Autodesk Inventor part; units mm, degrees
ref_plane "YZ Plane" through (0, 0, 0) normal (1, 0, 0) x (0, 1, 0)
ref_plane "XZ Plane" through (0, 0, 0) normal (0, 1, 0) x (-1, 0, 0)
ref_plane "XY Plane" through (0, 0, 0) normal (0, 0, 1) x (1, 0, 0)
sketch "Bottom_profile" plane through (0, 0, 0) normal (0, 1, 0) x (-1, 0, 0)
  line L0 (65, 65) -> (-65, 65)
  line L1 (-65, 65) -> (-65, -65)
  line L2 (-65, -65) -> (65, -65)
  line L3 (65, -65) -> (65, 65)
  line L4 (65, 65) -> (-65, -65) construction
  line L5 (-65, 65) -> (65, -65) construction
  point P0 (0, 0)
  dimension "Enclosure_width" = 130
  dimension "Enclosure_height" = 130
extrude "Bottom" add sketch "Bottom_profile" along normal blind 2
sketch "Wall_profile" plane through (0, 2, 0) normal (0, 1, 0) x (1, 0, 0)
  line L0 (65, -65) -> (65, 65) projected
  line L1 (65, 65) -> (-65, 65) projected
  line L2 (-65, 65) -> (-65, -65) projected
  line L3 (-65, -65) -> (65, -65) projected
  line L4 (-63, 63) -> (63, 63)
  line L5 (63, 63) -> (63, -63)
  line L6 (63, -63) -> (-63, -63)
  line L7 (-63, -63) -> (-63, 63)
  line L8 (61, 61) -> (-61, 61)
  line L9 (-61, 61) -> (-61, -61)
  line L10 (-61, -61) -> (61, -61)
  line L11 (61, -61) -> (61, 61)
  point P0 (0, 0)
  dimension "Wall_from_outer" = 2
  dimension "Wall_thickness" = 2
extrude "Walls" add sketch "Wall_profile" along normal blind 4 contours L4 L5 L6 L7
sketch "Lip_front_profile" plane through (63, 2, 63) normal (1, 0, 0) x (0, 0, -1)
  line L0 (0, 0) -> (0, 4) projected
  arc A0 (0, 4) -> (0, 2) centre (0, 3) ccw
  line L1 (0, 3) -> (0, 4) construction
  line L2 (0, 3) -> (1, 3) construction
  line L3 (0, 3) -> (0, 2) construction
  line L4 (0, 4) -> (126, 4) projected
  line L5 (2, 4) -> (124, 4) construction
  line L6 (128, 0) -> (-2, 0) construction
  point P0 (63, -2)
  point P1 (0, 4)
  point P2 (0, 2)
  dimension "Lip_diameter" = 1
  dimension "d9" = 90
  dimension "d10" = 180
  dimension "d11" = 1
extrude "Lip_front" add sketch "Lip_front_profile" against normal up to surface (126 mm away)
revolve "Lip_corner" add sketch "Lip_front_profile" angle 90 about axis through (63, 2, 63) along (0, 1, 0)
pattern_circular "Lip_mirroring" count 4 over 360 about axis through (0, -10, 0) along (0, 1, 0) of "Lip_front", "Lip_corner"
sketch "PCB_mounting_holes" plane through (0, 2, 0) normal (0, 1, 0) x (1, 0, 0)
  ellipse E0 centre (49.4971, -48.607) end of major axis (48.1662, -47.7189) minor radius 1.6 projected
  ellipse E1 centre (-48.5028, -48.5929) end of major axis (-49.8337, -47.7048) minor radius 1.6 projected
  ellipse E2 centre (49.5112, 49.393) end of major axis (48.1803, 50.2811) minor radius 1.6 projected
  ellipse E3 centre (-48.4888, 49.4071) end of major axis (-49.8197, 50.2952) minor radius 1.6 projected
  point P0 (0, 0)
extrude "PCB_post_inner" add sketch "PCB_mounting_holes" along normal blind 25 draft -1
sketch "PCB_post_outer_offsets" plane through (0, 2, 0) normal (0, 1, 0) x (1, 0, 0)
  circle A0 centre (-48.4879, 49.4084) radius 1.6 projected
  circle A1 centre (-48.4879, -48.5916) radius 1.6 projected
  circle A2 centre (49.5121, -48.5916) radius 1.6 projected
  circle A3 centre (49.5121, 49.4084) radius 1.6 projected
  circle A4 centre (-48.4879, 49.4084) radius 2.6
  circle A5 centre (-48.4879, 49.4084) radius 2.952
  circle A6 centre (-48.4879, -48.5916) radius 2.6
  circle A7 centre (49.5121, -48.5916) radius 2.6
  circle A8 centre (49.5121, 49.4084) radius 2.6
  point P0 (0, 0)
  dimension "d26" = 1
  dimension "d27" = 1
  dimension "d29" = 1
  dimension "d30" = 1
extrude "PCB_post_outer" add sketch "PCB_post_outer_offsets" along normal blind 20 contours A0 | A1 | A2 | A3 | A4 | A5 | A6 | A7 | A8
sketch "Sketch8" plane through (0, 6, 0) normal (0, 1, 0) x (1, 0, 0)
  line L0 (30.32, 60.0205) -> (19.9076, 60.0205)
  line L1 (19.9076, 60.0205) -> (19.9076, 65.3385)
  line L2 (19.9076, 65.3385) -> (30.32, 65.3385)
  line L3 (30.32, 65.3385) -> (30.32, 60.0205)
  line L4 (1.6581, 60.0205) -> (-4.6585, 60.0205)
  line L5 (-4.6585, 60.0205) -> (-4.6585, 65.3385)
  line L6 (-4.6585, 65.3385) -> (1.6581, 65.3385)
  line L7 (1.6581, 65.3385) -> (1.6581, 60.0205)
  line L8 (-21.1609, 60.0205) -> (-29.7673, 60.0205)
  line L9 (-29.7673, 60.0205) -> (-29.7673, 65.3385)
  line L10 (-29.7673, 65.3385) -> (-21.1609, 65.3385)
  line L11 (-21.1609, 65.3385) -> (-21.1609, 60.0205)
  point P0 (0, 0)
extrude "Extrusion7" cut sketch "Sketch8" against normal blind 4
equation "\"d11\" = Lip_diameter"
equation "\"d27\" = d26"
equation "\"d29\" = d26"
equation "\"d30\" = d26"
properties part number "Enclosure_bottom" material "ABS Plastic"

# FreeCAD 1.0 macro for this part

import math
import FreeCAD as App
import Part
import Sketcher
from FreeCAD import Vector


def add_polygon(sketch, points):
    """Adds a closed chain of lines whose ends are joined by coincident constraints."""
    first, n = sketch.GeometryCount, len(points)
    for a, b in zip(points, points[1:] + points[:1]):
        sketch.addGeometry(Part.LineSegment(App.Vector(*a, 0), App.Vector(*b, 0)), False)
    for i in range(n):
        sketch.addConstraint(Sketcher.Constraint("Coincident", first + i, 2, first + (i + 1) % n, 1))

doc = App.newDocument("Part")
params = doc.addObject("Spreadsheet::Sheet", "Params")
for row, (alias, value) in enumerate([
    ("sketch1_width", "130 mm"),
    ("pad1_length", "2 mm"),
    ("sketch2_width", "126 mm"),
    ("pad2_length", "4 mm"),
    ("sketch3_radius", "1 mm"),
    ("pad3_length", "126 mm"),
    ("sketch4_radius", "1 mm"),
    ("revolution_angle", "90 deg"),
    ("pad4_length", "25 mm"),
    ("pad4_taper", "-1 deg"),
    ("sketch6_diameter", "5.2 mm"),
    ("pad5_length", "20 mm"),
    ("pocket1_length", "4 mm"),
], start=1):
    params.set(f"A{row}", alias)
    params.set(f"B{row}", "=" + value)
    params.setAlias(f"B{row}", alias)

body = doc.addObject("PartDesign::Body", "Body")

# Sketch on XZ plane
sketch1 = body.newObject("Sketcher::SketchObject", "Sketch")
sketch1.AttachmentSupport = (doc.getObject("XZ_Plane"), [""])
sketch1.MapMode = "FlatFace"
add_polygon(sketch1, [(-65, -65), (-65, 65), (65, 65), (65, -65)])  # lines 0-3
sketch1.addConstraint(Sketcher.Constraint("Vertical", 0))
sketch1.addConstraint(Sketcher.Constraint("Horizontal", 1))
sketch1.addConstraint(Sketcher.Constraint("Vertical", 2))
sketch1.addConstraint(Sketcher.Constraint("Horizontal", 3))
sketch1.addConstraint(Sketcher.Constraint("Symmetric", 0, 2, 2, 2, -1, 1))
sketch1.addConstraint(Sketcher.Constraint("Equal", 3, 0))
sketch1.addConstraint(Sketcher.Constraint("DistanceX", 1, 1, 1, 2, 130.0))
sketch1.setExpression("Constraints[10]", "Params.sketch1_width")
pad1 = body.newObject("PartDesign::Pad", "Pad")
pad1.Profile = sketch1
pad1.setExpression("Length", "Params.pad1_length")
pad1.Reversed = True

# Sketch on XZ plane
sketch2 = body.newObject("Sketcher::SketchObject", "Sketch001")
sketch2.AttachmentSupport = (doc.getObject("XZ_Plane"), [""])
sketch2.MapMode = "FlatFace"
sketch2.AttachmentOffset = App.Placement(Vector(0, 0, -2), App.Rotation())
add_polygon(sketch2, [(63, -63), (-63, -63), (-63, 63), (63, 63)])  # lines 0-3
add_polygon(sketch2, [(-61, -61), (61, -61), (61, 61), (-61, 61)])  # lines 4-7
sketch2.addConstraint(Sketcher.Constraint("Horizontal", 0))
sketch2.addConstraint(Sketcher.Constraint("Vertical", 1))
sketch2.addConstraint(Sketcher.Constraint("Horizontal", 2))
sketch2.addConstraint(Sketcher.Constraint("Vertical", 3))
sketch2.addConstraint(Sketcher.Constraint("Horizontal", 4))
sketch2.addConstraint(Sketcher.Constraint("Vertical", 5))
sketch2.addConstraint(Sketcher.Constraint("Horizontal", 6))
sketch2.addConstraint(Sketcher.Constraint("Vertical", 7))
sketch2.addConstraint(Sketcher.Constraint("Symmetric", 0, 2, 2, 2, -1, 1))
sketch2.addConstraint(Sketcher.Constraint("Symmetric", 4, 2, 6, 2, -1, 1))
sketch2.addConstraint(Sketcher.Constraint("Equal", 2, 1))
sketch2.addConstraint(Sketcher.Constraint("Equal", 6, 5))
sketch2.addConstraint(Sketcher.Constraint("DistanceX", 4, 2, 3, 2, 2.0))
sketch2.addConstraint(Sketcher.Constraint("DistanceX", 0, 2, 0, 1, 126.0))
sketch2.setExpression("Constraints[21]", "Params.sketch2_width")
pad2 = body.newObject("PartDesign::Pad", "Pad001")
pad2.Profile = sketch2
pad2.setExpression("Length", "Params.pad2_length")
pad2.Reversed = True

# Sketch on YZ plane
sketch3 = body.newObject("Sketcher::SketchObject", "Sketch002")
sketch3.AttachmentSupport = (doc.getObject("YZ_Plane"), [""])
sketch3.MapMode = "FlatFace"
sketch3.AttachmentOffset = App.Placement(Vector(0, 0, 63), App.Rotation())
sketch3.addGeometry(Part.ArcOfCircle(Part.Circle(Vector(5, 63, 0), Vector(0, 0, 1), 1), math.radians(0), math.radians(180)), False)
sketch3.addGeometry(Part.LineSegment(Vector(4, 63, 0), Vector(6, 63, 0)), False)
sketch3.addConstraint(Sketcher.Constraint("Coincident", 0, 1, 1, 2))
sketch3.addConstraint(Sketcher.Constraint("Coincident", 1, 1, 0, 2))
sketch3.addConstraint(Sketcher.Constraint("Horizontal", 1))
sketch3.addConstraint(Sketcher.Constraint("Radius", 0, 1.0))
sketch3.addConstraint(Sketcher.Constraint("DistanceX", -1, 1, 0, 3, 5.0))
sketch3.addConstraint(Sketcher.Constraint("DistanceY", -1, 1, 0, 3, 63.0))
sketch3.addConstraint(Sketcher.Constraint("DistanceY", -1, 1, 0, 1, 63.0))
sketch3.setExpression("Constraints[3]", "Params.sketch3_radius")
pad3 = body.newObject("PartDesign::Pad", "Pad002")
pad3.Profile = sketch3
pad3.setExpression("Length", "Params.pad3_length")
pad3.Reversed = True

# Sketch on YZ plane
sketch4 = body.newObject("Sketcher::SketchObject", "Sketch003")
sketch4.AttachmentSupport = (doc.getObject("YZ_Plane"), [""])
sketch4.MapMode = "FlatFace"
sketch4.AttachmentOffset = App.Placement(Vector(0, 0, 63), App.Rotation())
sketch4.addGeometry(Part.ArcOfCircle(Part.Circle(Vector(5, 63, 0), Vector(0, 0, 1), 1), math.radians(0), math.radians(180)), False)
sketch4.addGeometry(Part.LineSegment(Vector(4, 63, 0), Vector(6, 63, 0)), False)
sketch4.addGeometry(Part.LineSegment(Vector(4, 63, 0), Vector(6, 63, 0)), True)  # axis
sketch4.addConstraint(Sketcher.Constraint("Coincident", 0, 1, 1, 2))
sketch4.addConstraint(Sketcher.Constraint("Coincident", 1, 1, 0, 2))
sketch4.addConstraint(Sketcher.Constraint("Horizontal", 1))
sketch4.addConstraint(Sketcher.Constraint("Horizontal", 2))
sketch4.addConstraint(Sketcher.Constraint("Coincident", 2, 1, 1, 1))
sketch4.addConstraint(Sketcher.Constraint("Equal", 1, 2))
sketch4.addConstraint(Sketcher.Constraint("Radius", 0, 1.0))
sketch4.addConstraint(Sketcher.Constraint("DistanceX", -1, 1, 0, 3, 5.0))
sketch4.addConstraint(Sketcher.Constraint("DistanceY", -1, 1, 0, 3, 63.0))
sketch4.addConstraint(Sketcher.Constraint("DistanceY", -1, 1, 0, 1, 63.0))
sketch4.setExpression("Constraints[6]", "Params.sketch4_radius")
revolution = body.newObject("PartDesign::Revolution", "Revolution")
revolution.Profile = sketch4
revolution.ReferenceAxis = (sketch4, ["Axis0"])
revolution.setExpression("Angle", "Params.revolution_angle")
doc.recompute()

polarpattern = body.newObject("PartDesign::PolarPattern", "PolarPattern")
polarpattern.Originals = [pad3, revolution]
polarpattern.Axis = (doc.getObject("Y_Axis"), [""])
polarpattern.Angle = 360
polarpattern.Occurrences = 4
body.Tip = polarpattern

# Sketch on XZ plane
sketch5 = body.newObject("Sketcher::SketchObject", "Sketch004")
sketch5.AttachmentSupport = (doc.getObject("XZ_Plane"), [""])
sketch5.MapMode = "FlatFace"
sketch5.AttachmentOffset = App.Placement(Vector(0, 0, -2), App.Rotation())
sketch5.addGeometry(Part.Ellipse(Vector(48.1662, 47.7189, 0), Vector(50.385197, 47.276104, 0), Vector(49.4971, 48.607, 0)), False)
sketch5.addGeometry(Part.Ellipse(Vector(-49.8337, 47.7048, 0), Vector(-47.614703, 47.262004, 0), Vector(-48.5028, 48.5929, 0)), False)
sketch5.addGeometry(Part.Ellipse(Vector(48.1803, -50.2811, 0), Vector(50.399297, -50.723896, 0), Vector(49.5112, -49.393, 0)), False)
sketch5.addGeometry(Part.Ellipse(Vector(-49.8197, -50.2952, 0), Vector(-47.600703, -50.737996, 0), Vector(-48.4888, -49.4071, 0)), False)
sketch5.addConstraint(Sketcher.Constraint("Block", 0))
sketch5.addConstraint(Sketcher.Constraint("Block", 1))
sketch5.addConstraint(Sketcher.Constraint("Block", 2))
sketch5.addConstraint(Sketcher.Constraint("Block", 3))
pad4 = body.newObject("PartDesign::Pad", "Pad003")
pad4.Profile = sketch5
pad4.setExpression("Length", "Params.pad4_length")
pad4.Reversed = True
pad4.setExpression("TaperAngle", "Params.pad4_taper")

# Sketch on XZ plane
sketch6 = body.newObject("Sketcher::SketchObject", "Sketch005")
sketch6.AttachmentSupport = (doc.getObject("XZ_Plane"), [""])
sketch6.MapMode = "FlatFace"
sketch6.AttachmentOffset = App.Placement(Vector(0, 0, -2), App.Rotation())
sketch6.addGeometry(Part.Circle(Vector(-48.5, -49.4, 0), Vector(0, 0, 1), 3), False)
sketch6.addGeometry(Part.Circle(Vector(-48.5, 48.6, 0), Vector(0, 0, 1), 2.6), False)
sketch6.addGeometry(Part.Circle(Vector(49.5, 48.6, 0), Vector(0, 0, 1), 2.6), False)
sketch6.addGeometry(Part.Circle(Vector(49.5, -49.4, 0), Vector(0, 0, 1), 2.6), False)
sketch6.addConstraint(Sketcher.Constraint("Equal", 1, 2))
sketch6.addConstraint(Sketcher.Constraint("Equal", 2, 3))
sketch6.addConstraint(Sketcher.Constraint("Horizontal", 1, 3, 2, 3))
sketch6.addConstraint(Sketcher.Constraint("Horizontal", 0, 3, 3, 3))
sketch6.addConstraint(Sketcher.Constraint("Vertical", 0, 3, 1, 3))
sketch6.addConstraint(Sketcher.Constraint("Vertical", 2, 3, 3, 3))
sketch6.addConstraint(Sketcher.Constraint("Diameter", 1, 5.2))
sketch6.addConstraint(Sketcher.Constraint("Diameter", 0, 5.904))
sketch6.addConstraint(Sketcher.Constraint("DistanceY", 0, 3, 1, 3, 98.0))
sketch6.addConstraint(Sketcher.Constraint("DistanceX", 1, 3, 2, 3, 98.0))
sketch6.addConstraint(Sketcher.Constraint("DistanceX", 0, 3, -1, 1, 48.488))
sketch6.addConstraint(Sketcher.Constraint("DistanceY", 0, 3, -1, 1, 49.4084))
sketch6.setExpression("Constraints[6]", "Params.sketch6_diameter")
pad5 = body.newObject("PartDesign::Pad", "Pad004")
pad5.Profile = sketch6
pad5.setExpression("Length", "Params.pad5_length")
pad5.Reversed = True

# Sketch on XZ plane
sketch7 = body.newObject("Sketcher::SketchObject", "Sketch006")
sketch7.AttachmentSupport = (doc.getObject("XZ_Plane"), [""])
sketch7.MapMode = "FlatFace"
sketch7.AttachmentOffset = App.Placement(Vector(0, 0, -6), App.Rotation())
add_polygon(sketch7, [(20, -60), (30, -60), (30, -65), (20, -65)])  # lines 0-3
add_polygon(sketch7, [(-5, -60), (2, -60), (2, -65), (-5, -65)])  # lines 4-7
add_polygon(sketch7, [(-30, -60), (-21, -60), (-21, -65), (-30, -65)])  # lines 8-11
sketch7.addConstraint(Sketcher.Constraint("Horizontal", 0))
sketch7.addConstraint(Sketcher.Constraint("Vertical", 1))
sketch7.addConstraint(Sketcher.Constraint("Horizontal", 2))
sketch7.addConstraint(Sketcher.Constraint("Vertical", 3))
sketch7.addConstraint(Sketcher.Constraint("Horizontal", 4))
sketch7.addConstraint(Sketcher.Constraint("Vertical", 5))
sketch7.addConstraint(Sketcher.Constraint("Horizontal", 6))
sketch7.addConstraint(Sketcher.Constraint("Vertical", 7))
sketch7.addConstraint(Sketcher.Constraint("Horizontal", 8))
sketch7.addConstraint(Sketcher.Constraint("Vertical", 9))
sketch7.addConstraint(Sketcher.Constraint("Horizontal", 10))
sketch7.addConstraint(Sketcher.Constraint("Vertical", 11))
sketch7.addConstraint(Sketcher.Constraint("Horizontal", 3, 2, 4, 2))
sketch7.addConstraint(Sketcher.Constraint("Horizontal", 2, 2, 5, 2))
sketch7.addConstraint(Sketcher.Constraint("Horizontal", 7, 2, 8, 2))
sketch7.addConstraint(Sketcher.Constraint("Horizontal", 6, 2, 9, 2))
sketch7.addConstraint(Sketcher.Constraint("DistanceY", 1, 2, 1, 1, 5.318))
sketch7.addConstraint(Sketcher.Constraint("DistanceX", -1, 1, 0, 2, 30.32))
sketch7.addConstraint(Sketcher.Constraint("DistanceX", 0, 1, 0, 2, 10.4124))
sketch7.addConstraint(Sketcher.Constraint("DistanceX", 4, 1, 4, 2, 6.3166))
sketch7.addConstraint(Sketcher.Constraint("DistanceX", 8, 1, 8, 2, 8.6064))
sketch7.addConstraint(Sketcher.Constraint("DistanceX", -1, 1, 4, 2, 1.658))
sketch7.addConstraint(Sketcher.Constraint("DistanceX", 8, 2, -1, 1, 21.161))
sketch7.addConstraint(Sketcher.Constraint("DistanceY", 0, 2, -1, 1, 60.0205))
pocket1 = body.newObject("PartDesign::Pocket", "Pocket")
pocket1.Profile = sketch7
pocket1.setExpression("Length", "Params.pocket1_length")
pocket1.Reversed = True

doc.recompute()
